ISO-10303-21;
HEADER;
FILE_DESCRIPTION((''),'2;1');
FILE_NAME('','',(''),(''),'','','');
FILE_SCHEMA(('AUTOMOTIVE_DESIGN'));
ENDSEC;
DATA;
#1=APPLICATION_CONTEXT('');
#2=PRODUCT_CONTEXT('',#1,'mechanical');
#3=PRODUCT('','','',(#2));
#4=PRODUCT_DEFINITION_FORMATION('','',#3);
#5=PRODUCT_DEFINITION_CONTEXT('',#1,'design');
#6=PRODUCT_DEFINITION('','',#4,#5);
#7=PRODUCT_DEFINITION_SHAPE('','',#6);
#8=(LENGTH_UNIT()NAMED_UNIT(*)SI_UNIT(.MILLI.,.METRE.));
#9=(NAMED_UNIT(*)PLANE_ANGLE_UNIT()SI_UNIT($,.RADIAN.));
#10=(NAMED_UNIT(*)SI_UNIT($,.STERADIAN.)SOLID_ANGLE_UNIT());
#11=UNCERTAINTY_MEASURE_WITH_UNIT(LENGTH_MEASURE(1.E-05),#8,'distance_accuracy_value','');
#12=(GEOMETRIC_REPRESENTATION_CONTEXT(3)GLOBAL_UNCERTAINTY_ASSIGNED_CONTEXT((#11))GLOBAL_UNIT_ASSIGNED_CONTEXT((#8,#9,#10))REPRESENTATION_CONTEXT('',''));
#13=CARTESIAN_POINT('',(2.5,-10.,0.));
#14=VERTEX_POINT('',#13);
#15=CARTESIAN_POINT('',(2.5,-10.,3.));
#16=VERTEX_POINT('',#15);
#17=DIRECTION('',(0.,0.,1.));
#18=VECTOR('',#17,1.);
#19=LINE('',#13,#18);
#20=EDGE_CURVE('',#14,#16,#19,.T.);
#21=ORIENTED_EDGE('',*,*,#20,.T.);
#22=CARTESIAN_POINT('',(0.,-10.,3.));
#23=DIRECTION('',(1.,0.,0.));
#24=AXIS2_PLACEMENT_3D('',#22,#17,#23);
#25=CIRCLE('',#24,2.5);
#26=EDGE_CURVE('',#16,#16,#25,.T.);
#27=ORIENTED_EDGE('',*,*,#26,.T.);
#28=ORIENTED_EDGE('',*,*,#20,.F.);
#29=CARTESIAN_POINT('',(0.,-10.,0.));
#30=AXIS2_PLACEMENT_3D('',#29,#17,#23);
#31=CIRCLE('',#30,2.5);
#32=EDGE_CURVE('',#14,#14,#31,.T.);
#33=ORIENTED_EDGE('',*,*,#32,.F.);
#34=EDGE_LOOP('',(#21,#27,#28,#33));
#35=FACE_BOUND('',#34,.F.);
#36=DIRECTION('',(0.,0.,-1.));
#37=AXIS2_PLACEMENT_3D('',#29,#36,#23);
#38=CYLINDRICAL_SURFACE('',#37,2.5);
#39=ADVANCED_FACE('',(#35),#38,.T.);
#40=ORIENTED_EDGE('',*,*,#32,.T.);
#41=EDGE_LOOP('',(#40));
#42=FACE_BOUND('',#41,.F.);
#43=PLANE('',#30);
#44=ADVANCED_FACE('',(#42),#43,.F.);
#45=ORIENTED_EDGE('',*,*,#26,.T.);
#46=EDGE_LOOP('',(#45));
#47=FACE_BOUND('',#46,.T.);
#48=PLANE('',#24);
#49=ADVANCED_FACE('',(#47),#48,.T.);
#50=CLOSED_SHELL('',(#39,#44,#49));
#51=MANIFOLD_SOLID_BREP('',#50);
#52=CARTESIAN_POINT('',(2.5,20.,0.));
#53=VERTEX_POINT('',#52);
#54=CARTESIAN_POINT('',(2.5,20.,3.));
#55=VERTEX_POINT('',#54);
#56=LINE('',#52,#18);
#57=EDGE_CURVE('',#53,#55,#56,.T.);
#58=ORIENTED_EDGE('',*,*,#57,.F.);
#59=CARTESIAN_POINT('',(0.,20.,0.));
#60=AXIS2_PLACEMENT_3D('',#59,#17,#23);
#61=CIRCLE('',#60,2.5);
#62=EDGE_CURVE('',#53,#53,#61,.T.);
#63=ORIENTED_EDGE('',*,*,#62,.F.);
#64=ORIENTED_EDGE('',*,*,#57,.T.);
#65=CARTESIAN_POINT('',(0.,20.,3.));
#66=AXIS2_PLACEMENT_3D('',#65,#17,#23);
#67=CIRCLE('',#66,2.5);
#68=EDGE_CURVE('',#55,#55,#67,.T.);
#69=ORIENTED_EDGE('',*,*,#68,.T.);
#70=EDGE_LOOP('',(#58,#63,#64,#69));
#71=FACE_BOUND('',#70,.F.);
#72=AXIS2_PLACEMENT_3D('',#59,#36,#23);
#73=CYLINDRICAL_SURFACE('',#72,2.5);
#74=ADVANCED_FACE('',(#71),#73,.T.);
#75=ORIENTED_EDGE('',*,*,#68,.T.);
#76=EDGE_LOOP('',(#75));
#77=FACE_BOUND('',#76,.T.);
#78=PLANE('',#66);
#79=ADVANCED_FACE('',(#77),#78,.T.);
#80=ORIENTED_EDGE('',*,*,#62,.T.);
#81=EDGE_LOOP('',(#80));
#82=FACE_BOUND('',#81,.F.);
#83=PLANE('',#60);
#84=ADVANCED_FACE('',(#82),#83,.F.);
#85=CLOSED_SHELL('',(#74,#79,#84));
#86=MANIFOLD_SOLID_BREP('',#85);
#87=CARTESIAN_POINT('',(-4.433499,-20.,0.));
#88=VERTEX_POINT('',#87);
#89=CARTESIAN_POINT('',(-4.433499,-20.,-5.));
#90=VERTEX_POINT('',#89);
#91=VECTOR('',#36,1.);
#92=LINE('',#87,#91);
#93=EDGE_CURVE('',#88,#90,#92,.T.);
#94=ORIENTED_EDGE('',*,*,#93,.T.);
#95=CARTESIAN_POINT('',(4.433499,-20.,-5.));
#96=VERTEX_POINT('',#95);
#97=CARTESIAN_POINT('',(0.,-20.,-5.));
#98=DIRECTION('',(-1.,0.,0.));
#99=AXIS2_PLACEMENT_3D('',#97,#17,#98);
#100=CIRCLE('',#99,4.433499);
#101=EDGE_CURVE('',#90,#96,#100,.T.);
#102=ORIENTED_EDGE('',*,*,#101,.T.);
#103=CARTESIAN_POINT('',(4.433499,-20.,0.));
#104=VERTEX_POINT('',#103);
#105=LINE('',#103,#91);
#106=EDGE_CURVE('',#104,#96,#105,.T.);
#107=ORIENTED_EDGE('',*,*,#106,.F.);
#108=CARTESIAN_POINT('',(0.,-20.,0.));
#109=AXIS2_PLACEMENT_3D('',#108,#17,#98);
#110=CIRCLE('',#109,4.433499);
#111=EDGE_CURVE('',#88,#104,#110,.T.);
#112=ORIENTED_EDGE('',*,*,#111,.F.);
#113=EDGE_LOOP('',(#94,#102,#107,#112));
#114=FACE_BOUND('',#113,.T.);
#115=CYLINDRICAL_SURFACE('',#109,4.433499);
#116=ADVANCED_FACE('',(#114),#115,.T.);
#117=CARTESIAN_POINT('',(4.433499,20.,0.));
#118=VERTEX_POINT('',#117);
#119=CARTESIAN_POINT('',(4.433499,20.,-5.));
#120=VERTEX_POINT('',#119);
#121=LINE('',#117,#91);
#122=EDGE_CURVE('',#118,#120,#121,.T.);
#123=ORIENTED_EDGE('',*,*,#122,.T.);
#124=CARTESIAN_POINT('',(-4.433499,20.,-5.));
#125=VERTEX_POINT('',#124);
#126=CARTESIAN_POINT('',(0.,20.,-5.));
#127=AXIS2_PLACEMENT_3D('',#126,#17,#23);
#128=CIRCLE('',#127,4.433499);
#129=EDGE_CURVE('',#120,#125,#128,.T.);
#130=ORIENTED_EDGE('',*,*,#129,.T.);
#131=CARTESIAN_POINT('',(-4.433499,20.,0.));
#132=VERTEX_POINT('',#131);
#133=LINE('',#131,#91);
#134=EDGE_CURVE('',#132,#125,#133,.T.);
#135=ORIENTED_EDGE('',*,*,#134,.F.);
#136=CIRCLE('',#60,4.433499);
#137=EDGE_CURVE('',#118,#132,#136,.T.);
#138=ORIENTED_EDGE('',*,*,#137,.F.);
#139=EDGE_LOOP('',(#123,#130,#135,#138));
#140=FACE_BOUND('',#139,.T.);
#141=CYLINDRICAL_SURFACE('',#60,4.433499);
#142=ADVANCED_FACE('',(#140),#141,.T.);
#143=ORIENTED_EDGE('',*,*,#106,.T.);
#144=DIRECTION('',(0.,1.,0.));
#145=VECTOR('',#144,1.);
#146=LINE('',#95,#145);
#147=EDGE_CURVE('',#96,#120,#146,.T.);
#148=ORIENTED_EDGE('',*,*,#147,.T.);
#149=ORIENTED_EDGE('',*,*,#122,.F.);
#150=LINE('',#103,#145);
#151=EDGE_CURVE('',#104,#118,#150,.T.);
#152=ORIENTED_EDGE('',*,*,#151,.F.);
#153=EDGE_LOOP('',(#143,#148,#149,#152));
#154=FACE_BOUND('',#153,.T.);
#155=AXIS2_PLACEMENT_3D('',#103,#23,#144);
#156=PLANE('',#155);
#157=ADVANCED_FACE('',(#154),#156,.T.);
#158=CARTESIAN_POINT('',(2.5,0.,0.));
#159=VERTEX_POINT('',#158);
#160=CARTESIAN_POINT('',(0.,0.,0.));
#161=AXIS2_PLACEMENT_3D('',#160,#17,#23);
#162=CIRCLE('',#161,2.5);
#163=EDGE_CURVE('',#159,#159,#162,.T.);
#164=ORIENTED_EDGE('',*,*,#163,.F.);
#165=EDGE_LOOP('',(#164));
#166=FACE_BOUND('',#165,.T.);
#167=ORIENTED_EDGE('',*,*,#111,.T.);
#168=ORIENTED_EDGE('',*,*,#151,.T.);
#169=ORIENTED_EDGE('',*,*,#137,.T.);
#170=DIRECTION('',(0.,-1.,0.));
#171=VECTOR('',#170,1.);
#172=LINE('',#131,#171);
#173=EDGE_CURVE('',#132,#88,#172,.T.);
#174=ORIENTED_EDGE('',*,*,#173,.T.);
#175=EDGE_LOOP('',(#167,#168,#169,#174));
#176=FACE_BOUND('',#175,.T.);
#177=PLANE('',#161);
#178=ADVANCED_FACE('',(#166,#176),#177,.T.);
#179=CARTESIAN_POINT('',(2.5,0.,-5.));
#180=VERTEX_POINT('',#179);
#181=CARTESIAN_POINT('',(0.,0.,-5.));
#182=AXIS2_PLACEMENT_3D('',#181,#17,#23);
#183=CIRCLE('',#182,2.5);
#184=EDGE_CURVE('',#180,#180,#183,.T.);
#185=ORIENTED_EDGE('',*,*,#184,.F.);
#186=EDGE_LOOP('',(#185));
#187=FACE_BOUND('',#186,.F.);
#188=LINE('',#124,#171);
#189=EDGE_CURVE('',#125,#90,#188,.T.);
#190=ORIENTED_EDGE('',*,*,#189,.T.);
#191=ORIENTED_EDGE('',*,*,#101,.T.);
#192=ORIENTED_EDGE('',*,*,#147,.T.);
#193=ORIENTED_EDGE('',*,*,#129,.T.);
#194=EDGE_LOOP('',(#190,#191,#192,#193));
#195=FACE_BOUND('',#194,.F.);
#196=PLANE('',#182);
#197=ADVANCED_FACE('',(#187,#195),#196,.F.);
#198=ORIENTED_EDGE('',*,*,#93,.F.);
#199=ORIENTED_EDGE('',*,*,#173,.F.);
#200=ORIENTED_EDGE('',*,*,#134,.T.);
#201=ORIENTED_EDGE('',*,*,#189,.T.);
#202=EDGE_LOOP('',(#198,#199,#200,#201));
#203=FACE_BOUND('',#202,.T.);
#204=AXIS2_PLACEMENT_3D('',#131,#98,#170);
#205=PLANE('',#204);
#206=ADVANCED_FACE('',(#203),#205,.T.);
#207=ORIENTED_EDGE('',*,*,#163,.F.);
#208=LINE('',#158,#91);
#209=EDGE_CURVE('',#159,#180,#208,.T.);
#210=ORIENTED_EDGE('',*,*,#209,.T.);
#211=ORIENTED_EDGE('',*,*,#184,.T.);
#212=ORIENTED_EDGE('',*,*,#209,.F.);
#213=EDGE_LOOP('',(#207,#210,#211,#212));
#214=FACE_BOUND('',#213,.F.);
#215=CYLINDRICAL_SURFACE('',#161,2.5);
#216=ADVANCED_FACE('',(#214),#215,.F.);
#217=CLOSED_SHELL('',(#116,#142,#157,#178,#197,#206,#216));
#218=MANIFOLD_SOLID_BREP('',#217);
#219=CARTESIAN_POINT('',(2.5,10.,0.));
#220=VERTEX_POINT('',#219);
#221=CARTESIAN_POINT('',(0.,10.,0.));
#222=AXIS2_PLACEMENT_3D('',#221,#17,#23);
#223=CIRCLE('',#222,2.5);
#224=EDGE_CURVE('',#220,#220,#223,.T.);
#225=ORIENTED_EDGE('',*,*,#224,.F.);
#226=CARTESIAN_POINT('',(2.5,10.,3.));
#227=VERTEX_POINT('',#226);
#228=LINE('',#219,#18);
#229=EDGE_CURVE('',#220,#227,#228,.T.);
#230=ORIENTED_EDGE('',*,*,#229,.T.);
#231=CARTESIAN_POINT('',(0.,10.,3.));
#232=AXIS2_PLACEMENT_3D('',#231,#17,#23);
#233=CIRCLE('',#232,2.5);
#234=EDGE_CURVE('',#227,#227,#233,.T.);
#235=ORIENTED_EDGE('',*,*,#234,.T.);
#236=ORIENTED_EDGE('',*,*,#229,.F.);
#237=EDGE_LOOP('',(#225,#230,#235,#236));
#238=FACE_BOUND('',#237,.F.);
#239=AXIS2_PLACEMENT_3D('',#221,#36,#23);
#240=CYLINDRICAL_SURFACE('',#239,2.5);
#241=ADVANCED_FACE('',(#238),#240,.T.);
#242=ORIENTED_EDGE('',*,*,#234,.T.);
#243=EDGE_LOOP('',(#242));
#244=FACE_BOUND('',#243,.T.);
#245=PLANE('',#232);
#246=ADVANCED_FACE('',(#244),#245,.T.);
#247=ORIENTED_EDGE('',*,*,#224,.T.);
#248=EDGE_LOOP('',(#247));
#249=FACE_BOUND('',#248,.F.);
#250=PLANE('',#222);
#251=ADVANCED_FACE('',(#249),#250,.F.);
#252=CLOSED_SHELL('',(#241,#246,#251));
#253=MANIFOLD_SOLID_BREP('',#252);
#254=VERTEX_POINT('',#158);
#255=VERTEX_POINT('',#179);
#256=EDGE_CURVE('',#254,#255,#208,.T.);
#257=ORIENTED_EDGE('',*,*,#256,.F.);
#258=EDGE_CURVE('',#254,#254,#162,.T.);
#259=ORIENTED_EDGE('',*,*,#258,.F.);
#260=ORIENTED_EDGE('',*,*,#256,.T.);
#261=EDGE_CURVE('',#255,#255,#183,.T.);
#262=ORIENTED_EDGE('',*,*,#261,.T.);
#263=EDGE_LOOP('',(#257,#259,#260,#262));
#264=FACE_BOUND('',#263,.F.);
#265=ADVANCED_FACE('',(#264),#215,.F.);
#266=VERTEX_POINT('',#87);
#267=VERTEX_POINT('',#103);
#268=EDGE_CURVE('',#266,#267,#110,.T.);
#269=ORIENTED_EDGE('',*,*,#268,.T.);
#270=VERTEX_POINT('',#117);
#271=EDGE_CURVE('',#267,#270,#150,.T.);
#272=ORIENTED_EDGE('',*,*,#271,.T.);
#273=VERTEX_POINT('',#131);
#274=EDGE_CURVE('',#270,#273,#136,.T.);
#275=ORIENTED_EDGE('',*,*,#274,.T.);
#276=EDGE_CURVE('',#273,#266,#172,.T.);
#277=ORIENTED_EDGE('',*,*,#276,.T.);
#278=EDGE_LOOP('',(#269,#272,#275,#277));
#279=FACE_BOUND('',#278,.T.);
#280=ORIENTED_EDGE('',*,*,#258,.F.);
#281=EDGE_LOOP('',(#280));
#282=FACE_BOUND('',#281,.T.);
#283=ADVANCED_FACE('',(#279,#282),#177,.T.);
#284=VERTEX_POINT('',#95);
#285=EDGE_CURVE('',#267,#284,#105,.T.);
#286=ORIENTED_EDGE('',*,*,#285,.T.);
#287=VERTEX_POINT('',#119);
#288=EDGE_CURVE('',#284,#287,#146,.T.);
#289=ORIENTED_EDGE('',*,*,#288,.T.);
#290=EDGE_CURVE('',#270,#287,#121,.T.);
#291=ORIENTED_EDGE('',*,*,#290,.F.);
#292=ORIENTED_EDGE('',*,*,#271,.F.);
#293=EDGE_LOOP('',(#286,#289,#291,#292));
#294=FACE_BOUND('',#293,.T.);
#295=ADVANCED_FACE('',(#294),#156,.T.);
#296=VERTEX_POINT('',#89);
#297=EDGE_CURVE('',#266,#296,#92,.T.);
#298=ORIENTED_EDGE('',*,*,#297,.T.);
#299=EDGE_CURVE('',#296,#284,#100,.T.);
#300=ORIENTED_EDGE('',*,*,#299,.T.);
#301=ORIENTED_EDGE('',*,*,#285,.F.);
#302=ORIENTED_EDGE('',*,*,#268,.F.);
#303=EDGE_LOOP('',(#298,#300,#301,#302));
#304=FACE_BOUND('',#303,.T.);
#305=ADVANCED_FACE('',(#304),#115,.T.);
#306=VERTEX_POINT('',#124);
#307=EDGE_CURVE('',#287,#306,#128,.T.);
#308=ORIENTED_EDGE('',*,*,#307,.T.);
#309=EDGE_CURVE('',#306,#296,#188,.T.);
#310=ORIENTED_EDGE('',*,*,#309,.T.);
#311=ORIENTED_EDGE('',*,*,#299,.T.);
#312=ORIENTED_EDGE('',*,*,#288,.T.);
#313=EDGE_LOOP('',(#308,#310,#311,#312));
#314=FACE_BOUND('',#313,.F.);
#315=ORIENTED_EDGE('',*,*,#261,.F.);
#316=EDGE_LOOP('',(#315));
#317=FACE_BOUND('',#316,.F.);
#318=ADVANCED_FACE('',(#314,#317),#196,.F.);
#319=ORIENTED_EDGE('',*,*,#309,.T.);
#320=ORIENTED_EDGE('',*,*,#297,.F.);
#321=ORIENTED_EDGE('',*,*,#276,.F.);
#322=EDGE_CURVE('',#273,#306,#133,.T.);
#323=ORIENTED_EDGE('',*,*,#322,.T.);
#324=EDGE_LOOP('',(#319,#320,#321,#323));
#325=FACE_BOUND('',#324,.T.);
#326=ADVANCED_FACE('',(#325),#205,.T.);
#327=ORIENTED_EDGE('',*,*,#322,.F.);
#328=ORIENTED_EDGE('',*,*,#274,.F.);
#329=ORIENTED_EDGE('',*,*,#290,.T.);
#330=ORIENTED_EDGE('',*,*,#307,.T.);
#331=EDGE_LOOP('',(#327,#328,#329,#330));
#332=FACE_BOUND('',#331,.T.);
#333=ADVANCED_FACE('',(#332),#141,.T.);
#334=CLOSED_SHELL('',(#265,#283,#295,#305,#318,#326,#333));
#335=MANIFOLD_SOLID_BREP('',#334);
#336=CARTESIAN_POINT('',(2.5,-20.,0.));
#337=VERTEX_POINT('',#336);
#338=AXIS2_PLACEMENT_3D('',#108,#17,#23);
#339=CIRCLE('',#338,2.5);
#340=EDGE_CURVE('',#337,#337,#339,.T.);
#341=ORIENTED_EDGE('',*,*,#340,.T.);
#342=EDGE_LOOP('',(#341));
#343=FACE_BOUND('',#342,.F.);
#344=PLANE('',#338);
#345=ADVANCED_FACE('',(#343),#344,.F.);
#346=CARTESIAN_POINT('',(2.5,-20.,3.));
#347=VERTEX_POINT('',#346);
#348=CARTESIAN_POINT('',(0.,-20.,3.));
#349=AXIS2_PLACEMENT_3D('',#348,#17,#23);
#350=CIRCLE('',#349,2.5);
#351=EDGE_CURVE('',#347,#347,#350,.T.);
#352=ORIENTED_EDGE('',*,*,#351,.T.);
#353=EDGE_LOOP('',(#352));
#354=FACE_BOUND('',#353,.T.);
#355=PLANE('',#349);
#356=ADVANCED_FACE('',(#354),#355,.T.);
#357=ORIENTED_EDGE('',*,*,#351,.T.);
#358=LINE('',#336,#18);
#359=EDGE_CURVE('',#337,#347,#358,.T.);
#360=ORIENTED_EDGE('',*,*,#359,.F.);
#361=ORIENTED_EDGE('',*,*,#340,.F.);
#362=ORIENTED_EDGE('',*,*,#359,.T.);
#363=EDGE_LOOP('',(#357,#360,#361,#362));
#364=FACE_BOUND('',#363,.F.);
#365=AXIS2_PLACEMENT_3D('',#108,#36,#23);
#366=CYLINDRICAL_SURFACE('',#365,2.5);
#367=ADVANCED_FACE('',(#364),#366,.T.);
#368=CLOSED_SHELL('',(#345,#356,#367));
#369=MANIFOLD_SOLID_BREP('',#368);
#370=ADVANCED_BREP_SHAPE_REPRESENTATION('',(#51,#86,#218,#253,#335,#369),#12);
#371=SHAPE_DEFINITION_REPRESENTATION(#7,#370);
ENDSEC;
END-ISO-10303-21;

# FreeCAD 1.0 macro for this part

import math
import FreeCAD as App
import Part
import Sketcher

V = App.Vector
Q = App.Units.Quantity

doc = App.newDocument("Part")
body = doc.addObject("PartDesign::Body", "Body")

# Sketch on XY plane
sketch1 = doc.addObject("Sketcher::SketchObject", "Sketch")
body.addObject(sketch1)
sketch1.AttachmentSupport = (doc.XY_Plane, [""])
sketch1.MapMode = "FlatFace"
sketch1.addGeometry([
    Part.ArcOfCircle(Part.Circle(V(0, 20, 0), V(0, 0, 1), 4.4), math.radians(0), math.radians(180)),
    Part.LineSegment(V(-4.4, 20, 0), V(-4.4, -20, 0)),
    Part.ArcOfCircle(Part.Circle(V(0, -20, 0), V(0, 0, 1), 4.4), math.radians(180), math.radians(360)),
    Part.LineSegment(V(4.4, -20, 0), V(4.4, 20, 0)),
], False)
sketch1.addConstraint([
    Sketcher.Constraint("Tangent", 0, 2, 1, 1),
    Sketcher.Constraint("Tangent", 1, 2, 2, 1),
    Sketcher.Constraint("Tangent", 2, 2, 3, 1),
    Sketcher.Constraint("Tangent", 3, 2, 0, 1),
    Sketcher.Constraint("Vertical", 1),
    Sketcher.Constraint("Vertical", 3),
    Sketcher.Constraint("Symmetric", 0, 3, 2, 3, -1, 1),
    Sketcher.Constraint("DistanceY", 1, 2, 1, 1, Q("40 mm")),
    Sketcher.Constraint("Radius", 0, Q("4.433499 mm")),
])
pad1 = doc.addObject("PartDesign::Pad", "Pad")
body.addObject(pad1)
pad1.Profile = sketch1
pad1.Length = 5
pad1.Reversed = True

# Sketch on XY plane
sketch2 = doc.addObject("Sketcher::SketchObject", "Sketch001")
body.addObject(sketch2)
sketch2.AttachmentSupport = (doc.XY_Plane, [""])
sketch2.MapMode = "FlatFace"
sketch2.addGeometry(Part.Circle(V(0, 0, 0), V(0, 0, 1), 2.5), False)
sketch2.addConstraint([
    Sketcher.Constraint("Coincident", 0, 3, -1, 1),
    Sketcher.Constraint("Diameter", 0, Q("5 mm")),
])
pocket1 = doc.addObject("PartDesign::Pocket", "Pocket")
body.addObject(pocket1)
pocket1.Profile = sketch2
pocket1.Type = "ThroughAll"
body2 = doc.addObject("PartDesign::Body", "Body001")

# Sketch on XY plane
sketch3 = doc.addObject("Sketcher::SketchObject", "Sketch002")
body2.addObject(sketch3)
sketch3.AttachmentSupport = (doc.getObject("XY_Plane001"), [""])
sketch3.MapMode = "FlatFace"
sketch3.addGeometry([
    Part.LineSegment(V(4.4, -20, 0), V(4.4, 20, 0)),  # 0
    Part.ArcOfCircle(Part.Circle(V(0, 20, 0), V(0, 0, 1), 4.4), math.radians(0), math.radians(180)),  # 1
    Part.LineSegment(V(-4.4, 20, 0), V(-4.4, -20, 0)),  # 2
    Part.ArcOfCircle(Part.Circle(V(0, -20, 0), V(0, 0, 1), 4.4), math.radians(180), math.radians(360)),  # 3
    Part.Circle(V(0, 0, 0), V(0, 0, 1), 2.5),  # 4
], False)
sketch3.addConstraint([
    Sketcher.Constraint("Tangent", 0, 2, 1, 1),
    Sketcher.Constraint("Tangent", 1, 2, 2, 1),
    Sketcher.Constraint("Tangent", 2, 2, 3, 1),
    Sketcher.Constraint("Tangent", 3, 2, 0, 1),
    Sketcher.Constraint("Vertical", 0),
    Sketcher.Constraint("Vertical", 2),
    Sketcher.Constraint("Coincident", 4, 3, -1, 1),
    Sketcher.Constraint("Symmetric", 1, 3, 3, 3, -1, 1),
    Sketcher.Constraint("Diameter", 4, Q("5 mm")),
    Sketcher.Constraint("DistanceY", 0, 1, 0, 2, Q("40 mm")),
    Sketcher.Constraint("Radius", 1, Q("4.433499 mm")),
])
pad2 = doc.addObject("PartDesign::Pad", "Pad001")
body2.addObject(pad2)
pad2.Profile = sketch3
pad2.Length = 5
pad2.Reversed = True
body3 = doc.addObject("PartDesign::Body", "Body002")

# Sketch on XY plane
sketch4 = doc.addObject("Sketcher::SketchObject", "Sketch003")
body3.addObject(sketch4)
sketch4.AttachmentSupport = (doc.getObject("XY_Plane002"), [""])
sketch4.MapMode = "FlatFace"
sketch4.addGeometry(Part.Circle(V(0, 10, 0), V(0, 0, 1), 2.5), False)
sketch4.addConstraint([
    Sketcher.Constraint("PointOnObject", 0, 3, -2),
    Sketcher.Constraint("Diameter", 0, Q("5 mm")),
    Sketcher.Constraint("DistanceY", -1, 1, 0, 3, Q("10 mm")),
])
pad3 = doc.addObject("PartDesign::Pad", "Pad002")
body3.addObject(pad3)
pad3.Profile = sketch4
pad3.Length = 3
body4 = doc.addObject("PartDesign::Body", "Body003")

# Sketch on XY plane
sketch5 = doc.addObject("Sketcher::SketchObject", "Sketch004")
body4.addObject(sketch5)
sketch5.AttachmentSupport = (doc.getObject("XY_Plane003"), [""])
sketch5.MapMode = "FlatFace"
sketch5.addGeometry(Part.Circle(V(0, 20, 0), V(0, 0, 1), 2.5), False)
sketch5.addConstraint([
    Sketcher.Constraint("PointOnObject", 0, 3, -2),
    Sketcher.Constraint("Diameter", 0, Q("5 mm")),
    Sketcher.Constraint("DistanceY", -1, 1, 0, 3, Q("20 mm")),
])
pad4 = doc.addObject("PartDesign::Pad", "Pad003")
body4.addObject(pad4)
pad4.Profile = sketch5
pad4.Length = 3
body5 = doc.addObject("PartDesign::Body", "Body004")

# Sketch on XY plane
sketch6 = doc.addObject("Sketcher::SketchObject", "Sketch005")
body5.addObject(sketch6)
sketch6.AttachmentSupport = (doc.getObject("XY_Plane004"), [""])
sketch6.MapMode = "FlatFace"
sketch6.addGeometry(Part.Circle(V(0, -10, 0), V(0, 0, 1), 2.5), False)
sketch6.addConstraint([
    Sketcher.Constraint("PointOnObject", 0, 3, -2),
    Sketcher.Constraint("Diameter", 0, Q("5 mm")),
    Sketcher.Constraint("DistanceY", 0, 3, -1, 1, Q("10 mm")),
])
pad5 = doc.addObject("PartDesign::Pad", "Pad004")
body5.addObject(pad5)
pad5.Profile = sketch6
pad5.Length = 3
body6 = doc.addObject("PartDesign::Body", "Body005")

# Sketch on XY plane
sketch7 = doc.addObject("Sketcher::SketchObject", "Sketch006")
body6.addObject(sketch7)
sketch7.AttachmentSupport = (doc.getObject("XY_Plane005"), [""])
sketch7.MapMode = "FlatFace"
sketch7.addGeometry(Part.Circle(V(0, -20, 0), V(0, 0, 1), 2.5), False)
sketch7.addConstraint([
    Sketcher.Constraint("PointOnObject", 0, 3, -2),
    Sketcher.Constraint("Diameter", 0, Q("5 mm")),
    Sketcher.Constraint("DistanceY", 0, 3, -1, 1, Q("20 mm")),
])
pad6 = doc.addObject("PartDesign::Pad", "Pad005")
body6.addObject(pad6)
pad6.Profile = sketch7
pad6.Length = 3

doc.recompute()
